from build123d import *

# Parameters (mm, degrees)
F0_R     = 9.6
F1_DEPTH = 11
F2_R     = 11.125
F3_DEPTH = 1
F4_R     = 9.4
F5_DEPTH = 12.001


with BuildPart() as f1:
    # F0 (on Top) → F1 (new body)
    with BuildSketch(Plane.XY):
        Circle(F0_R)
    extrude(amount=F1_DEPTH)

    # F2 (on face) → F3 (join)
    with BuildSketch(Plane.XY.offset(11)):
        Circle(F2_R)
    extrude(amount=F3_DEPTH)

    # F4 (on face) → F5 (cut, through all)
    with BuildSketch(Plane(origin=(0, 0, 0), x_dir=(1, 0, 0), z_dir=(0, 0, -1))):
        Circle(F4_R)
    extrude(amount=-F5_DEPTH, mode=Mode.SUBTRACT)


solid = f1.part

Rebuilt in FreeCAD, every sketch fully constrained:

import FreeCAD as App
import Part
import Sketcher

doc = App.newDocument("Part")
body = doc.addObject("PartDesign::Body", "Body")

sketch1 = body.newObject("Sketcher::SketchObject", "Sketch")
sketch1.AttachmentSupport = (doc.getObject("XY_Plane"), [""])
sketch1.MapMode = "FlatFace"
sketch1.addGeometry(Part.Circle(App.Vector(0, 0, 0), App.Vector(0, 0, 1), 10), False)
sketch1.addConstraint(Sketcher.Constraint("Coincident", 0, 3, -1, 1))
sketch1.addConstraint(Sketcher.Constraint("Diameter", 0, 19.2))
pad1 = body.newObject("PartDesign::Pad", "Pad")
pad1.Profile = sketch1
pad1.Length = 11

sketch2 = body.newObject("Sketcher::SketchObject", "Sketch001")
sketch2.AttachmentSupport = (doc.getObject("XY_Plane"), [""])
sketch2.MapMode = "FlatFace"
sketch2.AttachmentOffset = App.Placement(App.Vector(0, 0, 11), App.Rotation())
sketch2.addGeometry(Part.Circle(App.Vector(0, 0, 0), App.Vector(0, 0, 1), 11), False)
sketch2.addConstraint(Sketcher.Constraint("Coincident", 0, 3, -1, 1))
sketch2.addConstraint(Sketcher.Constraint("Diameter", 0, 22.25))
pad2 = body.newObject("PartDesign::Pad", "Pad001")
pad2.Profile = sketch2
pad2.Length = 1

sketch3 = body.newObject("Sketcher::SketchObject", "Sketch002")
sketch3.AttachmentSupport = (doc.getObject("XY_Plane"), [""])
sketch3.MapMode = "FlatFace"
sketch3.addGeometry(Part.Circle(App.Vector(0, 0, 0), App.Vector(0, 0, 1), 9), False)
sketch3.addConstraint(Sketcher.Constraint("Coincident", 0, 3, -1, 1))
sketch3.addConstraint(Sketcher.Constraint("Diameter", 0, 18.8))
pocket1 = body.newObject("PartDesign::Pocket", "Pocket")
pocket1.Profile = sketch3
pocket1.Type = "ThroughAll"
pocket1.Reversed = True

doc.recompute()
